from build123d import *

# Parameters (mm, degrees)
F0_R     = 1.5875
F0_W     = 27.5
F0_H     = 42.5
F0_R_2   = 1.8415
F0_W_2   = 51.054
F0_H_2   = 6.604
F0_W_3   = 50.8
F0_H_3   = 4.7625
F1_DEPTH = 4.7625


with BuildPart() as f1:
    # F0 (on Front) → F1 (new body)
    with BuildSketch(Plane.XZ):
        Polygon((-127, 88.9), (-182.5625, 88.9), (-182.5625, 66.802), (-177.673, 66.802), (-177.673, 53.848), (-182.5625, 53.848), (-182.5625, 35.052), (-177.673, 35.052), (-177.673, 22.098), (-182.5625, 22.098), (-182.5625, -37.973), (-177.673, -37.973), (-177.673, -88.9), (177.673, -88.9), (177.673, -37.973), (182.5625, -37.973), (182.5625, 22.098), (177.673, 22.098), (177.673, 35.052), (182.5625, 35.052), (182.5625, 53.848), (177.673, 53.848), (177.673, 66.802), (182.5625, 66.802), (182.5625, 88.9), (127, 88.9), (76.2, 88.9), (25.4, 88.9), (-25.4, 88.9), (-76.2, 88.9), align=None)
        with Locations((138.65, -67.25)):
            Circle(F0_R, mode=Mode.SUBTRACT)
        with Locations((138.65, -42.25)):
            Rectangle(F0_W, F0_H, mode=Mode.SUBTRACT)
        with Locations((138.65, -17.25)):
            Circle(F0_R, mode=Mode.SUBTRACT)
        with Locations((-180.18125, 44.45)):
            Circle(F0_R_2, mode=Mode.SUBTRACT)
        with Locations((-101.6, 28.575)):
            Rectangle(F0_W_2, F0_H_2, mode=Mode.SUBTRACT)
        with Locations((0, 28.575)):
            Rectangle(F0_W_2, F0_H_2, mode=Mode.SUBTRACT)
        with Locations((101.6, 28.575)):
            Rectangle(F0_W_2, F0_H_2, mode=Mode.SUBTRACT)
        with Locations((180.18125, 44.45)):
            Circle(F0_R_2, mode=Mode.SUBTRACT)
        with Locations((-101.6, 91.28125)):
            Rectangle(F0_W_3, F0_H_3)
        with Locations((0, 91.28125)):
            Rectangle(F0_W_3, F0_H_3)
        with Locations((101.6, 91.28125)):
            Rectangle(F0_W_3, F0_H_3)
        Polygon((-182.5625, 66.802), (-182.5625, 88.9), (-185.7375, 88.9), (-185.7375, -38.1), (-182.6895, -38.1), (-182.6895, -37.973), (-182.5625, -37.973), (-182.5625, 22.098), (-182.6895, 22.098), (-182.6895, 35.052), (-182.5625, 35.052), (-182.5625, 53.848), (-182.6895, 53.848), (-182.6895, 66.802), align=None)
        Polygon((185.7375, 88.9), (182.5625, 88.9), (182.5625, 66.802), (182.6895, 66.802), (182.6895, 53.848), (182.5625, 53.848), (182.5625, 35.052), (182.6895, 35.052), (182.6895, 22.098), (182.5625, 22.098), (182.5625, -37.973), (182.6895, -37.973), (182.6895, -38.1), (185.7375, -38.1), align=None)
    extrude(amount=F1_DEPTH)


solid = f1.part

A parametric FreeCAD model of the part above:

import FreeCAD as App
import Part
import Sketcher

V = App.Vector
Q = App.Units.Quantity


def add_polygon(sketch, points):
    """Adds a closed chain of lines whose ends are joined by coincident constraints."""
    first, n = sketch.GeometryCount, len(points)
    for a, b in zip(points, points[1:] + points[:1]):
        sketch.addGeometry(Part.LineSegment(App.Vector(*a, 0), App.Vector(*b, 0)), False)
    for i in range(n):
        sketch.addConstraint(Sketcher.Constraint("Coincident", first + i, 2, first + (i + 1) % n, 1))

doc = App.newDocument("Part")
body = doc.addObject("PartDesign::Body", "Body")

sketch1 = doc.addObject("Sketcher::SketchObject", "Sketch")
body.addObject(sketch1)
sketch1.AttachmentSupport = (doc.XZ_Plane, [""])
sketch1.MapMode = "FlatFace"
add_polygon(sketch1, [(-177.673, -37.973), (-177.673, -88.9), (177.673, -88.9), (177.673, -37.973), (182.6895, -37.973), (182.6895, -38.1), (185.7375, -38.1), (185.7375, 88.9), (127, 88.9), (127, 93.6625), (76.2, 93.6625), (76.2, 88.9), (25.4, 88.9), (25.4, 93.6625), (-25.4, 93.6625), (-25.4, 88.9), (-76.2, 88.9), (-76.2, 93.6625), (-127, 93.6625), (-127, 88.9), (-185.7375, 88.9), (-185.7375, -38.1), (-182.6895, -38.1), (-182.6895, -37.973)])
add_polygon(sketch1, [(-177.673, 66.802), (-177.673, 53.848), (-182.6895, 53.848), (-182.6895, 66.802)])
add_polygon(sketch1, [(-177.673, 35.052), (-177.673, 22.098), (-182.6895, 22.098), (-182.6895, 35.052)])
add_polygon(sketch1, [(177.673, 22.098), (177.673, 35.052), (182.6895, 35.052), (182.6895, 22.098)])
add_polygon(sketch1, [(177.673, 53.848), (177.673, 66.802), (182.6895, 66.802), (182.6895, 53.848)])
sketch1.addGeometry(Part.Circle(V(138.65, -67.25, 0), V(0, 0, 1), 1.5875), False)
add_polygon(sketch1, [(152.4, -63.5), (124.9, -63.5), (124.9, -21), (152.4, -21)])
sketch1.addGeometry(Part.Circle(V(138.65, -17.25, 0), V(0, 0, 1), 1.5875), False)
add_polygon(sketch1, [(-76.073, 25.273), (-127.127, 25.273), (-127.127, 31.877), (-76.073, 31.877)])
sketch1.addGeometry(Part.Circle(V(-180.18125, 44.45, 0), V(0, 0, 1), 1.8415), False)
add_polygon(sketch1, [(25.527, 25.273), (-25.527, 25.273), (-25.527, 31.877), (25.527, 31.877)])
add_polygon(sketch1, [(127.127, 25.273), (76.073, 25.273), (76.073, 31.877), (127.127, 31.877)])
sketch1.addGeometry(Part.Circle(V(180.18125, 44.45, 0), V(0, 0, 1), 1.8415), False)
sketch1.addConstraint([
    Sketcher.Constraint("Vertical", 0),
    Sketcher.Constraint("Horizontal", 1),
    Sketcher.Constraint("Vertical", 2),
    Sketcher.Constraint("Horizontal", 3),
    Sketcher.Constraint("Vertical", 4),
    Sketcher.Constraint("Horizontal", 5),
    Sketcher.Constraint("Vertical", 6),
    Sketcher.Constraint("Horizontal", 7),
    Sketcher.Constraint("Vertical", 8),
    Sketcher.Constraint("Horizontal", 9),
    Sketcher.Constraint("Vertical", 10),
    Sketcher.Constraint("Horizontal", 11),
    Sketcher.Constraint("Vertical", 12),
    Sketcher.Constraint("Horizontal", 13),
    Sketcher.Constraint("Vertical", 14),
    Sketcher.Constraint("Horizontal", 15),
    Sketcher.Constraint("Vertical", 16),
    Sketcher.Constraint("Horizontal", 17),
    Sketcher.Constraint("Vertical", 18),
    Sketcher.Constraint("Horizontal", 19),
    Sketcher.Constraint("Vertical", 20),
    Sketcher.Constraint("Horizontal", 21),
    Sketcher.Constraint("Vertical", 22),
    Sketcher.Constraint("Horizontal", 23),
    Sketcher.Constraint("Vertical", 24),
    Sketcher.Constraint("Horizontal", 25),
    Sketcher.Constraint("Vertical", 26),
    Sketcher.Constraint("Horizontal", 27),
    Sketcher.Constraint("Vertical", 28),
    Sketcher.Constraint("Horizontal", 29),
    Sketcher.Constraint("Vertical", 30),
    Sketcher.Constraint("Horizontal", 31),
    Sketcher.Constraint("Vertical", 32),
    Sketcher.Constraint("Horizontal", 33),
    Sketcher.Constraint("Vertical", 34),
    Sketcher.Constraint("Horizontal", 35),
    Sketcher.Constraint("Vertical", 36),
    Sketcher.Constraint("Horizontal", 37),
    Sketcher.Constraint("Vertical", 38),
    Sketcher.Constraint("Horizontal", 39),
    Sketcher.Constraint("Horizontal", 41),
    Sketcher.Constraint("Vertical", 42),
    Sketcher.Constraint("Horizontal", 43),
    Sketcher.Constraint("Vertical", 44),
    Sketcher.Constraint("Horizontal", 46),
    Sketcher.Constraint("Vertical", 47),
    Sketcher.Constraint("Horizontal", 48),
    Sketcher.Constraint("Vertical", 49),
    Sketcher.Constraint("Horizontal", 51),
    Sketcher.Constraint("Vertical", 52),
    Sketcher.Constraint("Horizontal", 53),
    Sketcher.Constraint("Vertical", 54),
    Sketcher.Constraint("Horizontal", 55),
    Sketcher.Constraint("Vertical", 56),
    Sketcher.Constraint("Horizontal", 57),
    Sketcher.Constraint("Vertical", 58),
    Sketcher.Constraint("Equal", 40, 45),
    Sketcher.Constraint("Equal", 50, 59),
    Sketcher.Constraint("Symmetric", 50, 3, 59, 3, -2),
    Sketcher.Constraint("Symmetric", 11, 2, 14, 2, -2),
    Sketcher.Constraint("Symmetric", 9, 2, 16, 2, -2),
    Sketcher.Constraint("Symmetric", 7, 2, 18, 2, -2),
    Sketcher.Constraint("Symmetric", 5, 2, 20, 2, -2),
    Sketcher.Constraint("Symmetric", 3, 2, 22, 2, -2),
    Sketcher.Constraint("Symmetric", 31, 2, 32, 2, -2),
    Sketcher.Constraint("Symmetric", 29, 2, 34, 2, -2),
    Sketcher.Constraint("Symmetric", 27, 2, 36, 2, -2),
    Sketcher.Constraint("Symmetric", 25, 2, 38, 2, -2),
    Sketcher.Constraint("Symmetric", 49, 2, 55, 2, -2),
    Sketcher.Constraint("Symmetric", 47, 2, 57, 2, -2),
    Sketcher.Constraint("Horizontal", 7, 2, 10, 2),
    Sketcher.Constraint("Horizontal", 9, 2, 12, 2),
    Sketcher.Constraint("Horizontal", 49, 2, 51, 2),
    Sketcher.Constraint("Horizontal", 48, 2, 52, 2),
    Sketcher.Constraint("Vertical", 40, 3, 45, 3),
    Sketcher.Constraint("Vertical", 23, 2, 24, 2),
    Sketcher.Constraint("Vertical", 22, 2, 25, 2),
    Sketcher.Constraint("Vertical", 27, 2, 28, 2),
    Sketcher.Constraint("Vertical", 26, 2, 29, 2),
    Sketcher.Constraint("Vertical", 2, 2, 32, 2),
    Sketcher.Constraint("Equal", 9, 11),
    Sketcher.Constraint("Equal", 11, 13),
    Sketcher.Constraint("Equal", 48, 51),
    Sketcher.Constraint("Equal", 26, 28),
    Sketcher.Constraint("DistanceX", 9, 2, 9, 1, Q("2 in")),
    Sketcher.Constraint("DistanceY", 6, 1, 6, 2, Q("5 in")),
    Sketcher.Constraint("Diameter", 40, Q("0.125 in")),
    Sketcher.Constraint("Diameter", 50, Q("0.145 in")),
    Sketcher.Constraint("DistanceX", -1, 1, 43, 2, Q("6 in")),
    Sketcher.Constraint("DistanceY", 1, 2, 4, 2, Q("2 in")),
    Sketcher.Constraint("DistanceY", 1, 2, 41, 2, Q("1 in")),
    Sketcher.Constraint("DistanceX", 1, 1, 1, 2, Q("13.99 in")),
    Sketcher.Constraint("DistanceX", 5, 1, 5, 2, Q("0.12 in")),
    Sketcher.Constraint("DistanceX", 46, 2, 46, 1, Q("2.01 in")),
    Sketcher.Constraint("DistanceY", 24, 2, 24, 1, Q("0.51 in")),
    Sketcher.Constraint("DistanceY", 47, 1, 47, 2, Q("0.26 in")),
    Sketcher.Constraint("DistanceY", 0, 2, -1, 1, Q("3.5 in")),
    Sketcher.Constraint("DistanceX", 7, 2, 7, 1, Q("2.3125 in")),
    Sketcher.Constraint("DistanceY", 0, 2, 0, 1, Q("2.005 in")),
    Sketcher.Constraint("DistanceY", 8, 1, 8, 2, Q("0.1875 in")),
    Sketcher.Constraint("DistanceY", -1, 1, 50, 3, Q("1.75 in")),
    Sketcher.Constraint("DistanceY", -1, 1, 24, 2, Q("2.12 in")),
    Sketcher.Constraint("DistanceY", -1, 1, 28, 2, Q("0.87 in")),
    Sketcher.Constraint("DistanceX", 28, 2, 46, 2, Q("1.99 in")),
    Sketcher.Constraint("DistanceX", 49, 2, 51, 2, Q("1.99 in")),
    Sketcher.Constraint("DistanceX", 50, 3, -1, 1, Q("7.09375 in")),
    Sketcher.Constraint("DistanceY", -1, 1, 46, 2, Q("0.995 in")),
    Sketcher.Constraint("DistanceX", 41, 2, 41, 1, 27.5),
    Sketcher.Constraint("DistanceY", 42, 1, 42, 2, 42.5),
    Sketcher.Constraint("DistanceX", -1, 1, 40, 3, 138.65),
    Sketcher.Constraint("DistanceY", 40, 3, -1, 1, 67.25),
    Sketcher.Constraint("DistanceY", 45, 3, -1, 1, 17.25),
])
pad1 = doc.addObject("PartDesign::Pad", "Pad")
body.addObject(pad1)
pad1.Profile = sketch1
pad1.Length = Q("0.1875 in")

doc.recompute()
